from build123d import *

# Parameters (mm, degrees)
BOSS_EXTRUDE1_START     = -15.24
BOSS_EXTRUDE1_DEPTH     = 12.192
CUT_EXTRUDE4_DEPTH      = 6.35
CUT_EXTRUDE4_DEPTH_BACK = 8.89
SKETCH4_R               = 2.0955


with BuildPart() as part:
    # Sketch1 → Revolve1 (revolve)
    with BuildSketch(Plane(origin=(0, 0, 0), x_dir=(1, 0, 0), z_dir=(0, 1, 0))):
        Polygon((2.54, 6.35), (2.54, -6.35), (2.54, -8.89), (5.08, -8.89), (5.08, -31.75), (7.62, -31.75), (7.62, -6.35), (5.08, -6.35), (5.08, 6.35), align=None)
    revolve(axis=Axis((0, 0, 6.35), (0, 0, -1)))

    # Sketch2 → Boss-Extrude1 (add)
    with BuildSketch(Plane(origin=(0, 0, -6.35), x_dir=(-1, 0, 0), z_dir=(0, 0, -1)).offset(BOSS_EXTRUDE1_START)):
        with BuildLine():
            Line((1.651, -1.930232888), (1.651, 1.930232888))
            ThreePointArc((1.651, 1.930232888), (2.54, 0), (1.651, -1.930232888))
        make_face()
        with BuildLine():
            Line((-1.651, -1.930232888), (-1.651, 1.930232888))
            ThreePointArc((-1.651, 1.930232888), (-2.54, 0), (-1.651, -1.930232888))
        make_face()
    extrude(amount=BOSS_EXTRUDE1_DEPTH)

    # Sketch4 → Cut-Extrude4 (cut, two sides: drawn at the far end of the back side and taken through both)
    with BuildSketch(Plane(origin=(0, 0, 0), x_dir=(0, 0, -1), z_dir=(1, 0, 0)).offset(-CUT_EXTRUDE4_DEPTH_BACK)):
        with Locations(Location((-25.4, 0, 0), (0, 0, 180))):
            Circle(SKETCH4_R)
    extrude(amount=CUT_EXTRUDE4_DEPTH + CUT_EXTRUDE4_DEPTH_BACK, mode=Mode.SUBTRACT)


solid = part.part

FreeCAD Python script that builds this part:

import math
import FreeCAD as App
import Part
import Sketcher
Q = App.Units.Quantity

doc = App.newDocument("Part")
body = doc.addObject("PartDesign::Body", "Body")

sketch1 = body.newObject("Sketcher::SketchObject", "Sketch")
sketch1.AttachmentSupport = (doc.getObject("XZ_Plane"), [""])
sketch1.MapMode = "FlatFace"
sketch1.addGeometry(Part.LineSegment(App.Vector(2.54, -6.35, 0), App.Vector(2.54, 8.89, 0)), False)
sketch1.addGeometry(Part.LineSegment(App.Vector(2.54, 8.89, 0), App.Vector(5.08, 8.89, 0)), False)
sketch1.addGeometry(Part.LineSegment(App.Vector(5.08, 8.89, 0), App.Vector(5.08, 31.75, 0)), False)
sketch1.addGeometry(Part.LineSegment(App.Vector(5.08, 31.75, 0), App.Vector(7.62, 31.75, 0)), False)
sketch1.addGeometry(Part.LineSegment(App.Vector(7.62, 31.75, 0), App.Vector(7.62, 6.35, 0)), False)
sketch1.addGeometry(Part.LineSegment(App.Vector(7.62, 6.35, 0), App.Vector(5.08, 6.35, 0)), False)
sketch1.addGeometry(Part.LineSegment(App.Vector(5.08, 6.35, 0), App.Vector(5.08, -6.35, 0)), False)
sketch1.addGeometry(Part.LineSegment(App.Vector(5.08, -6.35, 0), App.Vector(2.54, -6.35, 0)), False)
sketch1.addConstraint(Sketcher.Constraint("Coincident", 0, 2, 1, 1))
sketch1.addConstraint(Sketcher.Constraint("Coincident", 1, 2, 2, 1))
sketch1.addConstraint(Sketcher.Constraint("Coincident", 2, 2, 3, 1))
sketch1.addConstraint(Sketcher.Constraint("Coincident", 3, 2, 4, 1))
sketch1.addConstraint(Sketcher.Constraint("Coincident", 4, 2, 5, 1))
sketch1.addConstraint(Sketcher.Constraint("Coincident", 5, 2, 6, 1))
sketch1.addConstraint(Sketcher.Constraint("Coincident", 6, 2, 7, 1))
sketch1.addConstraint(Sketcher.Constraint("Coincident", 7, 2, 0, 1))
sketch1.addConstraint(Sketcher.Constraint("Vertical", 0))
sketch1.addConstraint(Sketcher.Constraint("Horizontal", 1))
sketch1.addConstraint(Sketcher.Constraint("Vertical", 2))
sketch1.addConstraint(Sketcher.Constraint("Horizontal", 3))
sketch1.addConstraint(Sketcher.Constraint("Vertical", 4))
sketch1.addConstraint(Sketcher.Constraint("Horizontal", 5))
sketch1.addConstraint(Sketcher.Constraint("Vertical", 6))
sketch1.addConstraint(Sketcher.Constraint("Horizontal", 7))
sketch1.addConstraint(Sketcher.Constraint("Vertical", 2, 2, 5, 2))
sketch1.addConstraint(Sketcher.Constraint("Equal", 1, 3))
sketch1.addConstraint(Sketcher.Constraint("DistanceY", 4, 2, 4, 1, Q("1 in")))
sketch1.addConstraint(Sketcher.Constraint("DistanceX", 1, 1, 1, 2, Q("0.1 in")))
sketch1.addConstraint(Sketcher.Constraint("DistanceY", 0, 1, 0, 2, Q("0.6 in")))
sketch1.addConstraint(Sketcher.Constraint("DistanceY", 2, 1, 2, 2, Q("0.9 in")))
sketch1.addConstraint(Sketcher.Constraint("DistanceX", -1, 1, 0, 2, Q("0.1 in")))
sketch1.addConstraint(Sketcher.Constraint("DistanceY", -1, 1, 0, 2, Q("0.35 in")))
revolution = body.newObject("PartDesign::Revolution", "Revolution")
revolution.Profile = sketch1
revolution.ReferenceAxis = (sketch1, ["V_Axis"])
revolution.Angle = 360

sketch2 = body.newObject("Sketcher::SketchObject", "Sketch001")
sketch2.AttachmentSupport = (doc.getObject("XY_Plane"), [""])
sketch2.MapMode = "FlatFace"
sketch2.AttachmentOffset = App.Placement(App.Vector(0, 0, 0.35 * 25.4), App.Rotation())
sketch2.addGeometry(Part.LineSegment(App.Vector(-1.651, 1.930233, 0), App.Vector(-1.651, -1.930233, 0)), False)
sketch2.addGeometry(Part.ArcOfCircle(Part.Circle(App.Vector(0, 0, 0), App.Vector(0, 0, 1), 2.54), math.radians(130.541602), math.radians(229.458398)), False)
sketch2.addGeometry(Part.LineSegment(App.Vector(1.651, -1.930233, 0), App.Vector(1.651, 1.930233, 0)), False)
sketch2.addGeometry(Part.ArcOfCircle(Part.Circle(App.Vector(0, 0, 0), App.Vector(0, 0, 1), 2.54), math.radians(-49.458398), math.radians(49.458398)), False)
sketch2.addConstraint(Sketcher.Constraint("Coincident", 0, 1, 1, 1))
sketch2.addConstraint(Sketcher.Constraint("Coincident", 1, 2, 0, 2))
sketch2.addConstraint(Sketcher.Constraint("Coincident", 2, 1, 3, 1))
sketch2.addConstraint(Sketcher.Constraint("Coincident", 3, 2, 2, 2))
sketch2.addConstraint(Sketcher.Constraint("Vertical", 0))
sketch2.addConstraint(Sketcher.Constraint("Vertical", 2))
sketch2.addConstraint(Sketcher.Constraint("Coincident", 1, 3, -1, 1))
sketch2.addConstraint(Sketcher.Constraint("Coincident", 3, 3, -1, 1))
sketch2.addConstraint(Sketcher.Constraint("Equal", 1, 3))
sketch2.addConstraint(Sketcher.Constraint("Horizontal", 1, 2, 2, 1))
sketch2.addConstraint(Sketcher.Constraint("Radius", 1, Q("0.1 in")))
sketch2.addConstraint(Sketcher.Constraint("DistanceX", 1, 2, 2, 1, Q("0.13 in")))
pad1 = body.newObject("PartDesign::Pad", "Pad")
pad1.Profile = sketch2
pad1.Length = Q("0.48 in")
pad1.Reversed = True

sketch3 = body.newObject("Sketcher::SketchObject", "Sketch002")
sketch3.AttachmentSupport = (doc.getObject("YZ_Plane"), [""])
sketch3.MapMode = "FlatFace"
sketch3.addGeometry(Part.Circle(App.Vector(0, 25.4, 0), App.Vector(0, 0, 1), 2.0955), False)
sketch3.addConstraint(Sketcher.Constraint("PointOnObject", 0, 3, -2))
sketch3.addConstraint(Sketcher.Constraint("Diameter", 0, Q("0.165 in")))
sketch3.addConstraint(Sketcher.Constraint("DistanceY", -1, 1, 0, 3, Q("1 in")))
pocket1 = body.newObject("PartDesign::Pocket", "Pocket")
pocket1.Profile = sketch3
pocket1.Type = "TwoLengths"
pocket1.Length = Q("0.25 in")
pocket1.Length2 = Q("0.35 in")
pocket1.Reversed = True

doc.recompute()
